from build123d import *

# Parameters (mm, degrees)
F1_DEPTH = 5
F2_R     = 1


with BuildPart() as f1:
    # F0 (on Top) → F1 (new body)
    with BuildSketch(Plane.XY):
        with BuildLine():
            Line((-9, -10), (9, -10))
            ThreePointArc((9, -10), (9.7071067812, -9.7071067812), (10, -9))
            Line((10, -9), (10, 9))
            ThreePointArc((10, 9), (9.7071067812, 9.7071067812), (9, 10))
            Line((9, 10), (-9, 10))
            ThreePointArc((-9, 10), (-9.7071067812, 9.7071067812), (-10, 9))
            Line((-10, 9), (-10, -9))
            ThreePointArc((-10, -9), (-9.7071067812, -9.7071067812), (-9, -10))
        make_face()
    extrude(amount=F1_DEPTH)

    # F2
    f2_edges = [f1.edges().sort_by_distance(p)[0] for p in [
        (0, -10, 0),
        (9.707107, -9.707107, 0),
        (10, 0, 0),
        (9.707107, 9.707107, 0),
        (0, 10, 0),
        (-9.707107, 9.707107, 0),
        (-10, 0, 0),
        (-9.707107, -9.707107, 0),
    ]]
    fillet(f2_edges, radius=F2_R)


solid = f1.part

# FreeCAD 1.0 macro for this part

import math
import FreeCAD as App
import Part
import Sketcher

V = App.Vector
Q = App.Units.Quantity


def edges_at(feature, points):
    """Names of the edges that pass closest to the given points."""
    edges = feature.Shape.Edges
    near = lambda p: min(range(len(edges)), key=lambda i: edges[i].distToShape(Part.Vertex(*p))[0])
    return sorted({f"Edge{near(p) + 1}" for p in points})

doc = App.newDocument("Part")
params = doc.addObject("Spreadsheet::Sheet", "Params")
for row, (alias, value) in enumerate([
    ("sketch1_radius", "1 mm"),
    ("sketch1_width", "18 mm"),
    ("pad1_length", "5 mm"),
    ("fillet_radius", "1 mm"),
], start=1):
    params.set(f"A{row}", alias)
    params.set(f"B{row}", "=" + value)
    params.setAlias(f"B{row}", alias)

body = doc.addObject("PartDesign::Body", "Body")

# Sketch on XY plane
sketch1 = body.newObject("Sketcher::SketchObject", "Sketch")
sketch1.AttachmentSupport = (doc.getObject("XY_Plane"), [""])
sketch1.MapMode = "FlatFace"
sketch1.addGeometry([
    Part.LineSegment(V(-9, -10, 0), V(9, -10, 0)),  # 0
    Part.ArcOfCircle(Part.Circle(V(9, -9, 0), V(0, 0, 1), 1), math.radians(-90), math.radians(0)),  # 1
    Part.LineSegment(V(10, -9, 0), V(10, 9, 0)),  # 2
    Part.ArcOfCircle(Part.Circle(V(9, 9, 0), V(0, 0, 1), 1), math.radians(0), math.radians(90)),  # 3
    Part.LineSegment(V(9, 10, 0), V(-9, 10, 0)),  # 4
    Part.ArcOfCircle(Part.Circle(V(-9, 9, 0), V(0, 0, 1), 1), math.radians(90), math.radians(180)),  # 5
    Part.LineSegment(V(-10, 9, 0), V(-10, -9, 0)),  # 6
    Part.ArcOfCircle(Part.Circle(V(-9, -9, 0), V(0, 0, 1), 1), math.radians(180), math.radians(270)),  # 7
], False)
sketch1.addConstraint([
    Sketcher.Constraint("Tangent", 0, 2, 1, 1),
    Sketcher.Constraint("Tangent", 1, 2, 2, 1),
    Sketcher.Constraint("Tangent", 2, 2, 3, 1),
    Sketcher.Constraint("Tangent", 3, 2, 4, 1),
    Sketcher.Constraint("Tangent", 4, 2, 5, 1),
    Sketcher.Constraint("Tangent", 5, 2, 6, 1),
    Sketcher.Constraint("Tangent", 6, 2, 7, 1),
    Sketcher.Constraint("Tangent", 7, 2, 0, 1),
    Sketcher.Constraint("Horizontal", 0),
    Sketcher.Constraint("Vertical", 2),
    Sketcher.Constraint("Horizontal", 4),
    Sketcher.Constraint("Vertical", 6),
    Sketcher.Constraint("Equal", 1, 3),
    Sketcher.Constraint("Equal", 3, 5),
    Sketcher.Constraint("Equal", 5, 7),
    Sketcher.Constraint("Symmetric", 1, 3, 5, 3, -1, 1),
    Sketcher.Constraint("Equal", 4, 2),
    Sketcher.Constraint("Radius", 1, Q("1 mm")),
    Sketcher.Constraint("DistanceX", 0, 1, 0, 2, Q("18 mm")),
])
sketch1.setExpression("Constraints[17]", "Params.sketch1_radius")
sketch1.setExpression("Constraints[18]", "Params.sketch1_width")
pad1 = body.newObject("PartDesign::Pad", "Pad")
pad1.Profile = sketch1
pad1.setExpression("Length", "Params.pad1_length")
doc.recompute()

fillet = body.newObject("PartDesign::Fillet", "Fillet")
fillet.Base = (pad1, edges_at(pad1, [
    (0, -10, 0),
    (9.707, -9.707, 0),
    (10, 0, 0),
    (9.707, 9.707, 0),
    (0, 10, 0),
    (-9.707, 9.707, 0),
    (-10, 0, 0),
    (-9.707, -9.707, 0),
]))
fillet.setExpression("Radius", "Params.fillet_radius")

doc.recompute()
